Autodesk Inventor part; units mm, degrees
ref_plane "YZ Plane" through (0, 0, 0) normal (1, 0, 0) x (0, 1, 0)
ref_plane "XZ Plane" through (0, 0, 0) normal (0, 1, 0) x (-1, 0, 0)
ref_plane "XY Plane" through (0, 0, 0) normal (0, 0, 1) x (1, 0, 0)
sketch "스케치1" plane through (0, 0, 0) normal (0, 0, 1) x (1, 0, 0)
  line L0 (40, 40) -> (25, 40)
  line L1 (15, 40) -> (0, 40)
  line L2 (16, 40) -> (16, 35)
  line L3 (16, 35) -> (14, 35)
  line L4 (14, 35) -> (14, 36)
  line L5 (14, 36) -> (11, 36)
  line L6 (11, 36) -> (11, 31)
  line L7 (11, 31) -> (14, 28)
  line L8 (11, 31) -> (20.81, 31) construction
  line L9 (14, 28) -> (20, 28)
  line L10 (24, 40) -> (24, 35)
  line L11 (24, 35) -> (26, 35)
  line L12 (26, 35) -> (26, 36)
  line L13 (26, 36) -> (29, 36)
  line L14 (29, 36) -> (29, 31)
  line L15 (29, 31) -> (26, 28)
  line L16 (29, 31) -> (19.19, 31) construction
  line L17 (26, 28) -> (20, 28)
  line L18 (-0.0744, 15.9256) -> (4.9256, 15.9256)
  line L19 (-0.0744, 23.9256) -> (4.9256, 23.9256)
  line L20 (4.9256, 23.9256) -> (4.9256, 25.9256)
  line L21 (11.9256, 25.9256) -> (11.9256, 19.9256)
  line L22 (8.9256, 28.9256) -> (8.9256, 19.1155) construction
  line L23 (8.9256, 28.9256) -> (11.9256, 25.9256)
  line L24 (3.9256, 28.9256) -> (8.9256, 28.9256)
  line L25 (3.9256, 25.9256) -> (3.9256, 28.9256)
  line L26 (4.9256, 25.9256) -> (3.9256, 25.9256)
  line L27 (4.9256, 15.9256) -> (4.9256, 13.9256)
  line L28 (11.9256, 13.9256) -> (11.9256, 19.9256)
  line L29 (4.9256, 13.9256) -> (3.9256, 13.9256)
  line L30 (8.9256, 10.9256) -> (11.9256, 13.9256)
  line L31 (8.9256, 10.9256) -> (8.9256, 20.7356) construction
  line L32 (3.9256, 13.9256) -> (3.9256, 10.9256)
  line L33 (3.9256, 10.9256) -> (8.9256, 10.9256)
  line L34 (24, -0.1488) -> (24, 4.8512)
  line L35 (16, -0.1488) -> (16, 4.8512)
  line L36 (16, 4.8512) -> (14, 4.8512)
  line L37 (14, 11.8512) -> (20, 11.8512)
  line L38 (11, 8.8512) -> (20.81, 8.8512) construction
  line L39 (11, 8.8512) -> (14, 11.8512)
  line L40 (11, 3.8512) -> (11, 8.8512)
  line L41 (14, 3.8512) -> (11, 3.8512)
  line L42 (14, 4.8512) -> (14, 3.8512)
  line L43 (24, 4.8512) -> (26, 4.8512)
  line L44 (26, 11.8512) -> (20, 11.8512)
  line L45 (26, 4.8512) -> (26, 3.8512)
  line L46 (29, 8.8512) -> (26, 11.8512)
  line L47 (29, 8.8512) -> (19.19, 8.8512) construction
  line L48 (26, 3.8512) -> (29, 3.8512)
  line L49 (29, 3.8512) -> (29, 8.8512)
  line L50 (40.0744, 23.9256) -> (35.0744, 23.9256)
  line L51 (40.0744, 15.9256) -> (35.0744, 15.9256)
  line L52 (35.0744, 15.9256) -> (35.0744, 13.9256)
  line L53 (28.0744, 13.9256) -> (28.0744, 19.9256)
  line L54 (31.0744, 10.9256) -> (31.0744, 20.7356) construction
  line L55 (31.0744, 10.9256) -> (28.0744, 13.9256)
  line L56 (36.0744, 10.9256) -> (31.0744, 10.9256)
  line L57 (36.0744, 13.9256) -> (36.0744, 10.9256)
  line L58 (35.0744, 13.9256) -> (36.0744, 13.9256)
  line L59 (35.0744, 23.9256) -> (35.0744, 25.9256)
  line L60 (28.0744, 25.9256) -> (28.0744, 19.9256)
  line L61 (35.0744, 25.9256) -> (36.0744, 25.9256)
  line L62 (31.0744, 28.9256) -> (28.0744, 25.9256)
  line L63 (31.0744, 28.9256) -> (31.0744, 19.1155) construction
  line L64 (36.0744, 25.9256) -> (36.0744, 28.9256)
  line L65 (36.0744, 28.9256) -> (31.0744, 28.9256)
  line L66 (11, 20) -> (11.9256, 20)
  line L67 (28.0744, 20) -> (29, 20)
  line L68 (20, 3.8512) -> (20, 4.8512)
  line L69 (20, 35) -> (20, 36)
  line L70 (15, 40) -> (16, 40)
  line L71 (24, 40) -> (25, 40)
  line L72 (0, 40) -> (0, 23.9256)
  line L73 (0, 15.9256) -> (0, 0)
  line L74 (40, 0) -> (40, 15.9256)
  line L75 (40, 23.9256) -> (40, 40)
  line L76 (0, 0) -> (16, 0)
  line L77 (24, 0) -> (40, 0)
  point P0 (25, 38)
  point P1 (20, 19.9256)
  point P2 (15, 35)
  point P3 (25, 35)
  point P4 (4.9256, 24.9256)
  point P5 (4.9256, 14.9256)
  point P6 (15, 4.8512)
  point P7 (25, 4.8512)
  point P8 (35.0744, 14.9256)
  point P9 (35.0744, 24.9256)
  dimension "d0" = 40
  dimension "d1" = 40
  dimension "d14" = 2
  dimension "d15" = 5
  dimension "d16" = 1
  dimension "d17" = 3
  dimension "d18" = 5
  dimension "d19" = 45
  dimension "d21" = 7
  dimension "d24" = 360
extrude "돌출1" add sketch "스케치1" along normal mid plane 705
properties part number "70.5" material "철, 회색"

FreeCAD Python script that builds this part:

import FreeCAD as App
import Part
import Sketcher
Q = App.Units.Quantity

doc = App.newDocument("Part")
body = doc.addObject("PartDesign::Body", "Body")

sketch1 = body.newObject("Sketcher::SketchObject", "Sketch")
sketch1.AttachmentSupport = (doc.getObject("XY_Plane"), [""])
sketch1.MapMode = "FlatFace"
sketch1.addGeometry([
    Part.LineSegment(App.Vector(40, 23.9, 0), App.Vector(40, 40, 0)),
    Part.LineSegment(App.Vector(40, 40, 0), App.Vector(24, 40, 0)),
    Part.LineSegment(App.Vector(24, 40, 0), App.Vector(24, 35, 0)),
    Part.LineSegment(App.Vector(24, 35, 0), App.Vector(26, 35, 0)),
    Part.LineSegment(App.Vector(26, 35, 0), App.Vector(26, 36, 0)),
    Part.LineSegment(App.Vector(26, 36, 0), App.Vector(29, 36, 0)),
    Part.LineSegment(App.Vector(29, 36, 0), App.Vector(29, 31, 0)),
    Part.LineSegment(App.Vector(29, 31, 0), App.Vector(26, 28, 0)),
    Part.LineSegment(App.Vector(26, 28, 0), App.Vector(14, 28, 0)),
    Part.LineSegment(App.Vector(14, 28, 0), App.Vector(11, 31, 0)),
    Part.LineSegment(App.Vector(11, 31, 0), App.Vector(11, 36, 0)),
    Part.LineSegment(App.Vector(11, 36, 0), App.Vector(14, 36, 0)),
    Part.LineSegment(App.Vector(14, 36, 0), App.Vector(14, 35, 0)),
    Part.LineSegment(App.Vector(14, 35, 0), App.Vector(16, 35, 0)),
    Part.LineSegment(App.Vector(16, 35, 0), App.Vector(16, 40, 0)),
    Part.LineSegment(App.Vector(16, 40, 0), App.Vector(0, 40, 0)),
    Part.LineSegment(App.Vector(0, 40, 0), App.Vector(0, 23.9, 0)),
    Part.LineSegment(App.Vector(0, 23.9, 0), App.Vector(4.9, 23.9, 0)),
    Part.LineSegment(App.Vector(4.9, 23.9, 0), App.Vector(4.9, 25.9, 0)),
    Part.LineSegment(App.Vector(4.9, 25.9, 0), App.Vector(3.9, 25.9, 0)),
    Part.LineSegment(App.Vector(3.9, 25.9, 0), App.Vector(3.9, 28.9, 0)),
    Part.LineSegment(App.Vector(3.9, 28.9, 0), App.Vector(8.9, 28.9, 0)),
    Part.LineSegment(App.Vector(8.9, 28.9, 0), App.Vector(11.9, 25.9, 0)),
    Part.LineSegment(App.Vector(11.9, 25.9, 0), App.Vector(11.9, 13.9, 0)),
    Part.LineSegment(App.Vector(11.9, 13.9, 0), App.Vector(8.9, 10.9, 0)),
    Part.LineSegment(App.Vector(8.9, 10.9, 0), App.Vector(3.9, 10.9, 0)),
    Part.LineSegment(App.Vector(3.9, 10.9, 0), App.Vector(3.9, 13.9, 0)),
    Part.LineSegment(App.Vector(3.9, 13.9, 0), App.Vector(4.9, 13.9, 0)),
    Part.LineSegment(App.Vector(4.9, 13.9, 0), App.Vector(4.9, 15.9, 0)),
    Part.LineSegment(App.Vector(4.9, 15.9, 0), App.Vector(0, 15.9, 0)),
    Part.LineSegment(App.Vector(0, 15.9, 0), App.Vector(0, 0, 0)),
    Part.LineSegment(App.Vector(0, 0, 0), App.Vector(16, 0, 0)),
    Part.LineSegment(App.Vector(16, 0, 0), App.Vector(16, 4.9, 0)),
    Part.LineSegment(App.Vector(16, 4.9, 0), App.Vector(14, 4.9, 0)),
    Part.LineSegment(App.Vector(14, 4.9, 0), App.Vector(14, 3.9, 0)),
    Part.LineSegment(App.Vector(14, 3.9, 0), App.Vector(11, 3.9, 0)),
    Part.LineSegment(App.Vector(11, 3.9, 0), App.Vector(11, 8.9, 0)),
    Part.LineSegment(App.Vector(11, 8.9, 0), App.Vector(14, 11.9, 0)),
    Part.LineSegment(App.Vector(14, 11.9, 0), App.Vector(26, 11.9, 0)),
    Part.LineSegment(App.Vector(26, 11.9, 0), App.Vector(29, 8.9, 0)),
    Part.LineSegment(App.Vector(29, 8.9, 0), App.Vector(29, 3.9, 0)),
    Part.LineSegment(App.Vector(29, 3.9, 0), App.Vector(26, 3.9, 0)),
    Part.LineSegment(App.Vector(26, 3.9, 0), App.Vector(26, 4.9, 0)),
    Part.LineSegment(App.Vector(26, 4.9, 0), App.Vector(24, 4.9, 0)),
    Part.LineSegment(App.Vector(24, 4.9, 0), App.Vector(24, 0, 0)),
    Part.LineSegment(App.Vector(24, 0, 0), App.Vector(40, 0, 0)),
    Part.LineSegment(App.Vector(40, 0, 0), App.Vector(40, 15.9, 0)),
    Part.LineSegment(App.Vector(40, 15.9, 0), App.Vector(35.1, 15.9, 0)),
    Part.LineSegment(App.Vector(35.1, 15.9, 0), App.Vector(35.1, 13.9, 0)),
    Part.LineSegment(App.Vector(35.1, 13.9, 0), App.Vector(36.1, 13.9, 0)),
    Part.LineSegment(App.Vector(36.1, 13.9, 0), App.Vector(36.1, 10.9, 0)),
    Part.LineSegment(App.Vector(36.1, 10.9, 0), App.Vector(31.1, 10.9, 0)),
    Part.LineSegment(App.Vector(31.1, 10.9, 0), App.Vector(28.1, 13.9, 0)),
    Part.LineSegment(App.Vector(28.1, 13.9, 0), App.Vector(28.1, 25.9, 0)),
    Part.LineSegment(App.Vector(28.1, 25.9, 0), App.Vector(31.1, 28.9, 0)),
    Part.LineSegment(App.Vector(31.1, 28.9, 0), App.Vector(36.1, 28.9, 0)),
    Part.LineSegment(App.Vector(36.1, 28.9, 0), App.Vector(36.1, 25.9, 0)),
    Part.LineSegment(App.Vector(36.1, 25.9, 0), App.Vector(35.1, 25.9, 0)),
    Part.LineSegment(App.Vector(35.1, 25.9, 0), App.Vector(35.1, 23.9, 0)),
    Part.LineSegment(App.Vector(35.1, 23.9, 0), App.Vector(40, 23.9, 0)),
], False)
sketch1.addConstraint([
    Sketcher.Constraint("Coincident", 0, 2, 1, 1),
    Sketcher.Constraint("Coincident", 1, 2, 2, 1),
    Sketcher.Constraint("Coincident", 2, 2, 3, 1),
    Sketcher.Constraint("Coincident", 3, 2, 4, 1),
    Sketcher.Constraint("Coincident", 4, 2, 5, 1),
    Sketcher.Constraint("Coincident", 5, 2, 6, 1),
    Sketcher.Constraint("Coincident", 6, 2, 7, 1),
    Sketcher.Constraint("Coincident", 7, 2, 8, 1),
    Sketcher.Constraint("Coincident", 8, 2, 9, 1),
    Sketcher.Constraint("Coincident", 9, 2, 10, 1),
    Sketcher.Constraint("Coincident", 10, 2, 11, 1),
    Sketcher.Constraint("Coincident", 11, 2, 12, 1),
    Sketcher.Constraint("Coincident", 12, 2, 13, 1),
    Sketcher.Constraint("Coincident", 13, 2, 14, 1),
    Sketcher.Constraint("Coincident", 14, 2, 15, 1),
    Sketcher.Constraint("Coincident", 15, 2, 16, 1),
    Sketcher.Constraint("Coincident", 16, 2, 17, 1),
    Sketcher.Constraint("Coincident", 17, 2, 18, 1),
    Sketcher.Constraint("Coincident", 18, 2, 19, 1),
    Sketcher.Constraint("Coincident", 19, 2, 20, 1),
    Sketcher.Constraint("Coincident", 20, 2, 21, 1),
    Sketcher.Constraint("Coincident", 21, 2, 22, 1),
    Sketcher.Constraint("Coincident", 22, 2, 23, 1),
    Sketcher.Constraint("Coincident", 23, 2, 24, 1),
    Sketcher.Constraint("Coincident", 24, 2, 25, 1),
    Sketcher.Constraint("Coincident", 25, 2, 26, 1),
    Sketcher.Constraint("Coincident", 26, 2, 27, 1),
    Sketcher.Constraint("Coincident", 27, 2, 28, 1),
    Sketcher.Constraint("Coincident", 28, 2, 29, 1),
    Sketcher.Constraint("Coincident", 29, 2, 30, 1),
    Sketcher.Constraint("Coincident", 30, 2, 31, 1),
    Sketcher.Constraint("Coincident", 31, 2, 32, 1),
    Sketcher.Constraint("Coincident", 32, 2, 33, 1),
    Sketcher.Constraint("Coincident", 33, 2, 34, 1),
    Sketcher.Constraint("Coincident", 34, 2, 35, 1),
    Sketcher.Constraint("Coincident", 35, 2, 36, 1),
    Sketcher.Constraint("Coincident", 36, 2, 37, 1),
    Sketcher.Constraint("Coincident", 37, 2, 38, 1),
    Sketcher.Constraint("Coincident", 38, 2, 39, 1),
    Sketcher.Constraint("Coincident", 39, 2, 40, 1),
    Sketcher.Constraint("Coincident", 40, 2, 41, 1),
    Sketcher.Constraint("Coincident", 41, 2, 42, 1),
    Sketcher.Constraint("Coincident", 42, 2, 43, 1),
    Sketcher.Constraint("Coincident", 43, 2, 44, 1),
    Sketcher.Constraint("Coincident", 44, 2, 45, 1),
    Sketcher.Constraint("Coincident", 45, 2, 46, 1),
    Sketcher.Constraint("Coincident", 46, 2, 47, 1),
    Sketcher.Constraint("Coincident", 47, 2, 48, 1),
    Sketcher.Constraint("Coincident", 48, 2, 49, 1),
    Sketcher.Constraint("Coincident", 49, 2, 50, 1),
    Sketcher.Constraint("Coincident", 50, 2, 51, 1),
    Sketcher.Constraint("Coincident", 51, 2, 52, 1),
    Sketcher.Constraint("Coincident", 52, 2, 53, 1),
    Sketcher.Constraint("Coincident", 53, 2, 54, 1),
    Sketcher.Constraint("Coincident", 54, 2, 55, 1),
    Sketcher.Constraint("Coincident", 55, 2, 56, 1),
    Sketcher.Constraint("Coincident", 56, 2, 57, 1),
    Sketcher.Constraint("Coincident", 57, 2, 58, 1),
    Sketcher.Constraint("Coincident", 58, 2, 59, 1),
    Sketcher.Constraint("Coincident", 59, 2, 0, 1),
    Sketcher.Constraint("Vertical", 0),
    Sketcher.Constraint("Horizontal", 1),
    Sketcher.Constraint("Vertical", 2),
    Sketcher.Constraint("Horizontal", 3),
    Sketcher.Constraint("Vertical", 4),
    Sketcher.Constraint("Horizontal", 5),
    Sketcher.Constraint("Vertical", 6),
    Sketcher.Constraint("Horizontal", 8),
    Sketcher.Constraint("Vertical", 10),
    Sketcher.Constraint("Horizontal", 11),
    Sketcher.Constraint("Vertical", 12),
    Sketcher.Constraint("Horizontal", 13),
    Sketcher.Constraint("Vertical", 14),
    Sketcher.Constraint("Horizontal", 15),
    Sketcher.Constraint("Vertical", 16),
    Sketcher.Constraint("Horizontal", 17),
    Sketcher.Constraint("Vertical", 18),
    Sketcher.Constraint("Horizontal", 19),
    Sketcher.Constraint("Vertical", 20),
    Sketcher.Constraint("Horizontal", 21),
    Sketcher.Constraint("Vertical", 23),
    Sketcher.Constraint("Horizontal", 25),
    Sketcher.Constraint("Vertical", 26),
    Sketcher.Constraint("Horizontal", 27),
    Sketcher.Constraint("Vertical", 28),
    Sketcher.Constraint("Horizontal", 29),
    Sketcher.Constraint("Vertical", 30),
    Sketcher.Constraint("Horizontal", 31),
    Sketcher.Constraint("Vertical", 32),
    Sketcher.Constraint("Horizontal", 33),
    Sketcher.Constraint("Vertical", 34),
    Sketcher.Constraint("Horizontal", 35),
    Sketcher.Constraint("Vertical", 36),
    Sketcher.Constraint("Horizontal", 38),
    Sketcher.Constraint("Vertical", 40),
    Sketcher.Constraint("Horizontal", 41),
    Sketcher.Constraint("Vertical", 42),
    Sketcher.Constraint("Horizontal", 43),
    Sketcher.Constraint("Vertical", 44),
    Sketcher.Constraint("Horizontal", 45),
    Sketcher.Constraint("Vertical", 46),
    Sketcher.Constraint("Horizontal", 47),
    Sketcher.Constraint("Vertical", 48),
    Sketcher.Constraint("Horizontal", 49),
    Sketcher.Constraint("Vertical", 50),
    Sketcher.Constraint("Horizontal", 51),
    Sketcher.Constraint("Vertical", 53),
    Sketcher.Constraint("Horizontal", 55),
    Sketcher.Constraint("Vertical", 56),
    Sketcher.Constraint("Horizontal", 57),
    Sketcher.Constraint("Vertical", 58),
    Sketcher.Constraint("Horizontal", 59),
    Sketcher.Constraint("Coincident", 30, 2, -1, 1),
    Sketcher.Constraint("PointOnObject", 15, 2, -2),
    Sketcher.Constraint("PointOnObject", 44, 2, -1),
    Sketcher.Constraint("Perpendicular", 7, 9),
    Sketcher.Constraint("Parallel", 9, 22),
    Sketcher.Constraint("Perpendicular", 22, 24),
    Sketcher.Constraint("Parallel", 24, 37),
    Sketcher.Constraint("Perpendicular", 37, 39),
    Sketcher.Constraint("Parallel", 39, 52),
    Sketcher.Constraint("Perpendicular", 52, 54),
    Sketcher.Constraint("Horizontal", 6, 2, 9, 2),
    Sketcher.Constraint("Horizontal", 5, 2, 10, 2),
    Sketcher.Constraint("Horizontal", 3, 2, 12, 2),
    Sketcher.Constraint("Horizontal", 1, 2, 14, 2),
    Sketcher.Constraint("Horizontal", 19, 2, 22, 2),
    Sketcher.Constraint("Horizontal", 23, 2, 26, 2),
    Sketcher.Constraint("Horizontal", 36, 2, 39, 2),
    Sketcher.Constraint("Horizontal", 35, 2, 40, 2),
    Sketcher.Constraint("Horizontal", 33, 2, 42, 2),
    Sketcher.Constraint("Horizontal", 29, 2, 46, 2),
    Sketcher.Constraint("Horizontal", 27, 2, 48, 2),
    Sketcher.Constraint("Horizontal", 25, 2, 50, 2),
    Sketcher.Constraint("Horizontal", 49, 2, 52, 2),
    Sketcher.Constraint("Horizontal", 22, 2, 53, 2),
    Sketcher.Constraint("Horizontal", 21, 2, 54, 2),
    Sketcher.Constraint("Horizontal", 53, 2, 56, 2),
    Sketcher.Constraint("Horizontal", 17, 2, 58, 2),
    Sketcher.Constraint("Vertical", 4, 2, 7, 2),
    Sketcher.Constraint("Vertical", 8, 2, 11, 2),
    Sketcher.Constraint("Vertical", 21, 2, 24, 2),
    Sketcher.Constraint("Vertical", 20, 2, 25, 2),
    Sketcher.Constraint("Vertical", 18, 2, 27, 2),
    Sketcher.Constraint("Vertical", 14, 2, 31, 2),
    Sketcher.Constraint("Vertical", 12, 2, 33, 2),
    Sketcher.Constraint("Vertical", 10, 2, 35, 2),
    Sketcher.Constraint("Vertical", 34, 2, 37, 2),
    Sketcher.Constraint("Vertical", 7, 2, 38, 2),
    Sketcher.Constraint("Vertical", 6, 2, 39, 2),
    Sketcher.Constraint("Vertical", 38, 2, 41, 2),
    Sketcher.Constraint("Vertical", 2, 2, 43, 2),
    Sketcher.Constraint("Vertical", 0, 2, 45, 2),
    Sketcher.Constraint("Vertical", 50, 2, 55, 2),
    Sketcher.Constraint("Vertical", 48, 2, 57, 2),
    Sketcher.Constraint("Equal", 3, 13),
    Sketcher.Constraint("Equal", 1, 15),
    Sketcher.Constraint("Equal", 29, 47),
    Sketcher.Constraint("Equal", 27, 49),
    Sketcher.Constraint("Equal", 25, 51),
    Sketcher.Constraint("Equal", 55, 2),
    Sketcher.Constraint("Equal", 57, 4),
    Sketcher.Constraint("Equal", 2, 6),
    Sketcher.Constraint("Equal", 43, 18),
    Sketcher.Constraint("Equal", 41, 20),
    Sketcher.Constraint("Equal", 38, 23),
    Sketcher.Constraint("Equal", 18, 28),
    Sketcher.Constraint("Equal", 12, 34),
    Sketcher.Constraint("Equal", 14, 36),
    Sketcher.Constraint("DistanceX", 3, 1, 3, 2, Q("2 mm")),
    Sketcher.Constraint("DistanceX", 5, 1, 5, 2, Q("3 mm")),
    Sketcher.Constraint("DistanceX", 19, 2, 19, 1, Q("1 mm")),
    Sketcher.Constraint("DistanceX", 21, 1, 21, 2, Q("5 mm")),
    Sketcher.Constraint("DistanceX", -1, 1, 0, 2, Q("40 mm")),
    Sketcher.Constraint("DistanceY", -1, 1, 0, 2, Q("40 mm")),
    Sketcher.Constraint("DistanceX", 1, 2, 1, 1, Q("16 mm")),
    Sketcher.Constraint("DistanceX", 17, 1, 17, 2, Q("4.9256 mm")),
    Sketcher.Constraint("DistanceY", 0, 1, 0, 2, Q("16.0744 mm")),
    Sketcher.Constraint("DistanceY", 32, 1, 32, 2, Q("4.8512 mm")),
])
pad1 = body.newObject("PartDesign::Pad", "Pad")
pad1.Profile = sketch1
pad1.Length = 705
pad1.Midplane = True

doc.recompute()
